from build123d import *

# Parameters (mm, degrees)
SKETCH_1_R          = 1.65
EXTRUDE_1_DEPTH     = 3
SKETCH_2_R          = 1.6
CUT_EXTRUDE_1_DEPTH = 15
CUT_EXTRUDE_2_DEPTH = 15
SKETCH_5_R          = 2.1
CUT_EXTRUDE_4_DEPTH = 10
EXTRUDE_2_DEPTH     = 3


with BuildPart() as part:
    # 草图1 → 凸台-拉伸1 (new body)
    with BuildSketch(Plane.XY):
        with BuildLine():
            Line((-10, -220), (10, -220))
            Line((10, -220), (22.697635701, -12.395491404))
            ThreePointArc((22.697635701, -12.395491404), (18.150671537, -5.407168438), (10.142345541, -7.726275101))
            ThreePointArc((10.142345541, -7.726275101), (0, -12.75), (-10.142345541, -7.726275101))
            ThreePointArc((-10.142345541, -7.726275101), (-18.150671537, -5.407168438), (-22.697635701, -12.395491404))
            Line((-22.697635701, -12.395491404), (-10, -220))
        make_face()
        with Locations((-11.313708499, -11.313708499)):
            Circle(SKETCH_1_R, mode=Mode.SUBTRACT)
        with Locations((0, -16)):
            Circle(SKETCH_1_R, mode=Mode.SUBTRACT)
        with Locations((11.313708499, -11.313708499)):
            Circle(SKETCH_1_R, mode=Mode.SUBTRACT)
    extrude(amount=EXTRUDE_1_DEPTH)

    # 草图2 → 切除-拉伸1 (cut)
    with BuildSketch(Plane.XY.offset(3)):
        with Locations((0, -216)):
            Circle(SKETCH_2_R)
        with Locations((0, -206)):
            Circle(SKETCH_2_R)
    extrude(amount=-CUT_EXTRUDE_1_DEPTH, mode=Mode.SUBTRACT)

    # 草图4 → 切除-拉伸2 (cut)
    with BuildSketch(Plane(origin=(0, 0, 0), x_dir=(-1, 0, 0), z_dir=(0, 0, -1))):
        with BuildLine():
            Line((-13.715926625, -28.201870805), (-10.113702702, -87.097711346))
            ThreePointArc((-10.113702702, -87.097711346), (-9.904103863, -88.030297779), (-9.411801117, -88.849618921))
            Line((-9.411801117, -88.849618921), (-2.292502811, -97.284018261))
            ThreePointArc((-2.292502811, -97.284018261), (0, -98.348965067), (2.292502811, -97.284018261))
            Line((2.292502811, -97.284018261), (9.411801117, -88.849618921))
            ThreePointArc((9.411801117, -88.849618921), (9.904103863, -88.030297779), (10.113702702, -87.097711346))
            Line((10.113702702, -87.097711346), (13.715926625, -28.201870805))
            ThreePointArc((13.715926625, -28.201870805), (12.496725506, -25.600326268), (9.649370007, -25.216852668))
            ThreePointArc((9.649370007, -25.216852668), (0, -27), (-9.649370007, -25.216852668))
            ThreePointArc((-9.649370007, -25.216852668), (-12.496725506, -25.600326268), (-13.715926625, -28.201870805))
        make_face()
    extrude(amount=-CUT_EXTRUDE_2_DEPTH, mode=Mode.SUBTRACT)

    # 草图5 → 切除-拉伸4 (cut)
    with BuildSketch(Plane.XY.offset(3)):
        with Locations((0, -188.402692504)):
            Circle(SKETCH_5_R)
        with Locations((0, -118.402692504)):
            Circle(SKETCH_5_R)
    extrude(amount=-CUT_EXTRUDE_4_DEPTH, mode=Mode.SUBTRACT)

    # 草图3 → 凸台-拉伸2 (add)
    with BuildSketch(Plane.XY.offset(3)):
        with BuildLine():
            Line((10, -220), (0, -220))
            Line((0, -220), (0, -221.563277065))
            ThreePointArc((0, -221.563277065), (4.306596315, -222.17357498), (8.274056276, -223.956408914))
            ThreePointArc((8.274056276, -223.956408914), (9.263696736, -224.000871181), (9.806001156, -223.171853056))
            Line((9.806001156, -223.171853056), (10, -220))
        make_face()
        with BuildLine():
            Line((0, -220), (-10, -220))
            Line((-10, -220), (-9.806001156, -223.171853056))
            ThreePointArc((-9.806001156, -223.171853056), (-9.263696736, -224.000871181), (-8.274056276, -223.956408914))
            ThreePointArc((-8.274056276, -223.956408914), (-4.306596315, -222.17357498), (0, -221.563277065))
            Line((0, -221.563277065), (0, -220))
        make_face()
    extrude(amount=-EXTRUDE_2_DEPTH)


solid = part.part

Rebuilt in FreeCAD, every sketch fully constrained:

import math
import FreeCAD as App
import Part
import Sketcher
Q = App.Units.Quantity

doc = App.newDocument("Part")
body = doc.addObject("PartDesign::Body", "Body")

# Sketch on XY plane
sketch1 = body.newObject("Sketcher::SketchObject", "Sketch")
sketch1.AttachmentSupport = (doc.getObject("XY_Plane"), [""])
sketch1.MapMode = "FlatFace"
sketch1.addGeometry(Part.LineSegment(App.Vector(-10, -220, 0), App.Vector(10, -220, 0)), False)
sketch1.addGeometry(Part.LineSegment(App.Vector(10, -220, 0), App.Vector(22.7, -12.4, 0)), False)
sketch1.addGeometry(Part.ArcOfCircle(Part.Circle(App.Vector(15.7, -12, 0), App.Vector(0, 0, 1), 7), math.radians(-4), math.radians(143)), False)
sketch1.addGeometry(Part.ArcOfCircle(Part.Circle(App.Vector(0, 0, 0), App.Vector(0, 0, 1), 12.8), math.radians(-143), math.radians(-37)), False)
sketch1.addGeometry(Part.ArcOfCircle(Part.Circle(App.Vector(-15.7, -12, 0), App.Vector(0, 0, 1), 7), math.radians(37), math.radians(184)), False)
sketch1.addGeometry(Part.LineSegment(App.Vector(-22.7, -12.4, 0), App.Vector(-10, -220, 0)), False)
sketch1.addGeometry(Part.Circle(App.Vector(0, -16, 0), App.Vector(0, 0, 1), 1.6), False)
sketch1.addGeometry(Part.Circle(App.Vector(-11.3, -11.3, 0), App.Vector(0, 0, 1), 1.6), False)
sketch1.addGeometry(Part.Circle(App.Vector(11.3, -11.3, 0), App.Vector(0, 0, 1), 1.6), False)
sketch1.addConstraint(Sketcher.Constraint("Coincident", 0, 2, 1, 1))
sketch1.addConstraint(Sketcher.Constraint("Tangent", 1, 2, 2, 1))
sketch1.addConstraint(Sketcher.Constraint("Tangent", 2, 2, 3, 2))
sketch1.addConstraint(Sketcher.Constraint("Tangent", 3, 1, 4, 1))
sketch1.addConstraint(Sketcher.Constraint("Tangent", 4, 2, 5, 1))
sketch1.addConstraint(Sketcher.Constraint("Coincident", 5, 2, 0, 1))
sketch1.addConstraint(Sketcher.Constraint("Horizontal", 0))
sketch1.addConstraint(Sketcher.Constraint("Coincident", 3, 3, -1, 1))
sketch1.addConstraint(Sketcher.Constraint("Equal", 2, 4))
sketch1.addConstraint(Sketcher.Constraint("Equal", 6, 7))
sketch1.addConstraint(Sketcher.Constraint("Equal", 7, 8))
sketch1.addConstraint(Sketcher.Constraint("Symmetric", 7, 3, 8, 3, -2))
sketch1.addConstraint(Sketcher.Constraint("Symmetric", 1, 2, 4, 2, -2))
sketch1.addConstraint(Sketcher.Constraint("PointOnObject", 6, 3, -2))
sketch1.addConstraint(Sketcher.Constraint("Radius", 2, Q("7 mm")))
sketch1.addConstraint(Sketcher.Constraint("Diameter", 6, Q("3.3 mm")))
sketch1.addConstraint(Sketcher.Constraint("DistanceX", 0, 1, 0, 2, Q("20 mm")))
sketch1.addConstraint(Sketcher.Constraint("Radius", 3, Q("12.75 mm")))
sketch1.addConstraint(Sketcher.Constraint("DistanceY", 6, 3, -1, 1, Q("16 mm")))
sketch1.addConstraint(Sketcher.Constraint("DistanceY", 0, 2, -1, 1, Q("220 mm")))
sketch1.addConstraint(Sketcher.Constraint("Angle", 1, Q("86.5 deg")))
sketch1.addConstraint(Sketcher.Constraint("DistanceX", 7, 3, 2, 3, Q("27.024401 mm")))
sketch1.addConstraint(Sketcher.Constraint("DistanceY", 7, 3, -1, 1, Q("11.313708 mm")))
pad1 = body.newObject("PartDesign::Pad", "Pad")
pad1.Profile = sketch1
pad1.Length = 3

# Sketch on XY plane
sketch2 = body.newObject("Sketcher::SketchObject", "Sketch001")
sketch2.AttachmentSupport = (doc.getObject("XY_Plane"), [""])
sketch2.MapMode = "FlatFace"
sketch2.AttachmentOffset = App.Placement(App.Vector(0, 0, 3), App.Rotation())
sketch2.addGeometry(Part.Circle(App.Vector(0, -216, 0), App.Vector(0, 0, 1), 1.6), False)
sketch2.addGeometry(Part.Circle(App.Vector(0, -206, 0), App.Vector(0, 0, 1), 1.6), False)
sketch2.addConstraint(Sketcher.Constraint("Equal", 0, 1))
sketch2.addConstraint(Sketcher.Constraint("PointOnObject", 0, 3, -2))
sketch2.addConstraint(Sketcher.Constraint("PointOnObject", 1, 3, -2))
sketch2.addConstraint(Sketcher.Constraint("Diameter", 0, Q("3.2 mm")))
sketch2.addConstraint(Sketcher.Constraint("DistanceY", 0, 3, -1, 1, Q("216 mm")))
sketch2.addConstraint(Sketcher.Constraint("DistanceY", 1, 3, -1, 1, Q("206 mm")))
pocket1 = body.newObject("PartDesign::Pocket", "Pocket")
pocket1.Profile = sketch2
pocket1.Length = 15

# Sketch on XY plane
sketch3 = body.newObject("Sketcher::SketchObject", "Sketch002")
sketch3.AttachmentSupport = (doc.getObject("XY_Plane"), [""])
sketch3.MapMode = "FlatFace"
sketch3.addGeometry(Part.LineSegment(App.Vector(13.7, -28.2, 0), App.Vector(10.1, -87.1, 0)), False)
sketch3.addGeometry(Part.ArcOfCircle(Part.Circle(App.Vector(7.1, -86.9, 0), App.Vector(0, 0, 1), 3), math.radians(-40), math.radians(-4)), False)
sketch3.addGeometry(Part.LineSegment(App.Vector(9.4, -88.8, 0), App.Vector(2.3, -97.3, 0)), False)
sketch3.addGeometry(Part.ArcOfCircle(Part.Circle(App.Vector(0, -95.3, 0), App.Vector(0, 0, 1), 3), math.radians(-140), math.radians(-40)), False)
sketch3.addGeometry(Part.LineSegment(App.Vector(-2.3, -97.3, 0), App.Vector(-9.4, -88.8, 0)), False)
sketch3.addGeometry(Part.ArcOfCircle(Part.Circle(App.Vector(-7.1, -86.9, 0), App.Vector(0, 0, 1), 3), math.radians(-176), math.radians(-140)), False)
sketch3.addGeometry(Part.LineSegment(App.Vector(-10.1, -87.1, 0), App.Vector(-13.7, -28.2, 0)), False)
sketch3.addGeometry(Part.ArcOfCircle(Part.Circle(App.Vector(-10.7, -28, 0), App.Vector(0, 0, 1), 3), math.radians(69), math.radians(184)), False)
sketch3.addGeometry(Part.ArcOfCircle(Part.Circle(App.Vector(0, 0, 0), App.Vector(0, 0, 1), 27), math.radians(-111), math.radians(-69)), False)
sketch3.addGeometry(Part.ArcOfCircle(Part.Circle(App.Vector(10.7, -28, 0), App.Vector(0, 0, 1), 3), math.radians(-4), math.radians(111)), False)
sketch3.addConstraint(Sketcher.Constraint("Tangent", 0, 2, 1, 2))
sketch3.addConstraint(Sketcher.Constraint("Tangent", 1, 1, 2, 1))
sketch3.addConstraint(Sketcher.Constraint("Tangent", 2, 2, 3, 2))
sketch3.addConstraint(Sketcher.Constraint("Tangent", 3, 1, 4, 1))
sketch3.addConstraint(Sketcher.Constraint("Tangent", 4, 2, 5, 2))
sketch3.addConstraint(Sketcher.Constraint("Tangent", 5, 1, 6, 1))
sketch3.addConstraint(Sketcher.Constraint("Tangent", 6, 2, 7, 2))
sketch3.addConstraint(Sketcher.Constraint("Tangent", 7, 1, 8, 1))
sketch3.addConstraint(Sketcher.Constraint("Tangent", 8, 2, 9, 2))
sketch3.addConstraint(Sketcher.Constraint("Tangent", 9, 1, 0, 1))
sketch3.addConstraint(Sketcher.Constraint("Coincident", 8, 3, -1, 1))
sketch3.addConstraint(Sketcher.Constraint("Equal", 1, 3))
sketch3.addConstraint(Sketcher.Constraint("Equal", 3, 5))
sketch3.addConstraint(Sketcher.Constraint("Equal", 5, 7))
sketch3.addConstraint(Sketcher.Constraint("Equal", 7, 9))
sketch3.addConstraint(Sketcher.Constraint("Symmetric", 1, 3, 5, 3, -2))
sketch3.addConstraint(Sketcher.Constraint("PointOnObject", 3, 3, -2))
sketch3.addConstraint(Sketcher.Constraint("Horizontal", 7, 3, 9, 3))
sketch3.addConstraint(Sketcher.Constraint("Radius", 1, Q("3 mm")))
sketch3.addConstraint(Sketcher.Constraint("Radius", 8, Q("27 mm")))
sketch3.addConstraint(Sketcher.Constraint("Angle", 0, Q("-93.5 deg")))
sketch3.addConstraint(Sketcher.Constraint("DistanceX", 5, 3, 0, 2, Q("17.233001 mm")))
sketch3.addConstraint(Sketcher.Constraint("Distance", 0, Q("59.005898 mm")))
sketch3.addConstraint(Sketcher.Constraint("DistanceX", -1, 1, 1, 1, Q("9.411801 mm")))
pocket2 = body.newObject("PartDesign::Pocket", "Pocket001")
pocket2.Profile = sketch3
pocket2.Length = 15
pocket2.Reversed = True

# Sketch on XY plane
sketch4 = body.newObject("Sketcher::SketchObject", "Sketch003")
sketch4.AttachmentSupport = (doc.getObject("XY_Plane"), [""])
sketch4.MapMode = "FlatFace"
sketch4.AttachmentOffset = App.Placement(App.Vector(0, 0, 3), App.Rotation())
sketch4.addGeometry(Part.Circle(App.Vector(0, -188.4, 0), App.Vector(0, 0, 1), 2.1), False)
sketch4.addGeometry(Part.Circle(App.Vector(0, -118.4, 0), App.Vector(0, 0, 1), 2.1), False)
sketch4.addConstraint(Sketcher.Constraint("Equal", 0, 1))
sketch4.addConstraint(Sketcher.Constraint("PointOnObject", 0, 3, -2))
sketch4.addConstraint(Sketcher.Constraint("PointOnObject", 1, 3, -2))
sketch4.addConstraint(Sketcher.Constraint("Diameter", 0, Q("4.2 mm")))
sketch4.addConstraint(Sketcher.Constraint("DistanceY", 0, 3, 1, 3, Q("70 mm")))
sketch4.addConstraint(Sketcher.Constraint("DistanceY", 0, 3, -1, 1, Q("188.402693 mm")))
pocket3 = body.newObject("PartDesign::Pocket", "Pocket002")
pocket3.Profile = sketch4
pocket3.Length = 10

# Sketch on XY plane
sketch5 = body.newObject("Sketcher::SketchObject", "Sketch004")
sketch5.AttachmentSupport = (doc.getObject("XY_Plane"), [""])
sketch5.MapMode = "FlatFace"
sketch5.AttachmentOffset = App.Placement(App.Vector(0, 0, 3), App.Rotation())
sketch5.addGeometry(Part.LineSegment(App.Vector(10, -220, 0), App.Vector(-10, -220, 0)), False)
sketch5.addGeometry(Part.LineSegment(App.Vector(-10, -220, 0), App.Vector(-9.8, -223.2, 0)), False)
sketch5.addGeometry(Part.ArcOfCircle(Part.Circle(App.Vector(-8.8, -223.1, 0), App.Vector(0, 0, 1), 1), math.radians(-177), math.radians(-58)), False)
sketch5.addGeometry(Part.ArcOfCircle(Part.Circle(App.Vector(0, -237.1, 0), App.Vector(0, 0, 1), 15.5), math.radians(90), math.radians(122)), False)
sketch5.addGeometry(Part.ArcOfCircle(Part.Circle(App.Vector(0, -237.1, 0), App.Vector(0, 0, 1), 15.5), math.radians(58), math.radians(90)), False)
sketch5.addGeometry(Part.ArcOfCircle(Part.Circle(App.Vector(8.8, -223.1, 0), App.Vector(0, 0, 1), 1), math.radians(-122), math.radians(-3)), False)
sketch5.addGeometry(Part.LineSegment(App.Vector(9.8, -223.2, 0), App.Vector(10, -220, 0)), False)
sketch5.addConstraint(Sketcher.Constraint("Coincident", 0, 2, 1, 1))
sketch5.addConstraint(Sketcher.Constraint("Tangent", 1, 2, 2, 1))
sketch5.addConstraint(Sketcher.Constraint("Tangent", 2, 2, 3, 2))
sketch5.addConstraint(Sketcher.Constraint("Tangent", 3, 1, 4, 2))
sketch5.addConstraint(Sketcher.Constraint("Tangent", 4, 1, 5, 1))
sketch5.addConstraint(Sketcher.Constraint("Tangent", 5, 2, 6, 1))
sketch5.addConstraint(Sketcher.Constraint("Coincident", 6, 2, 0, 1))
sketch5.addConstraint(Sketcher.Constraint("Horizontal", 0))
sketch5.addConstraint(Sketcher.Constraint("Equal", 3, 4))
sketch5.addConstraint(Sketcher.Constraint("Equal", 2, 5))
sketch5.addConstraint(Sketcher.Constraint("Symmetric", 2, 3, 5, 3, -2))
sketch5.addConstraint(Sketcher.Constraint("PointOnObject", 3, 1, -2))
sketch5.addConstraint(Sketcher.Constraint("Horizontal", 1, 2, 5, 2))
sketch5.addConstraint(Sketcher.Constraint("Radius", 2, Q("1 mm")))
sketch5.addConstraint(Sketcher.Constraint("Radius", 3, Q("15.5 mm")))
sketch5.addConstraint(Sketcher.Constraint("DistanceX", 0, 2, 0, 1, Q("20 mm")))
sketch5.addConstraint(Sketcher.Constraint("DistanceY", 0, 2, -1, 1, Q("220 mm")))
sketch5.addConstraint(Sketcher.Constraint("Angle", 1, Q("-86.5 deg")))
sketch5.addConstraint(Sketcher.Constraint("DistanceX", 1, 2, -1, 1, Q("9.806001 mm")))
pad2 = body.newObject("PartDesign::Pad", "Pad001")
pad2.Profile = sketch5
pad2.Length = 3
pad2.Reversed = True

doc.recompute()
